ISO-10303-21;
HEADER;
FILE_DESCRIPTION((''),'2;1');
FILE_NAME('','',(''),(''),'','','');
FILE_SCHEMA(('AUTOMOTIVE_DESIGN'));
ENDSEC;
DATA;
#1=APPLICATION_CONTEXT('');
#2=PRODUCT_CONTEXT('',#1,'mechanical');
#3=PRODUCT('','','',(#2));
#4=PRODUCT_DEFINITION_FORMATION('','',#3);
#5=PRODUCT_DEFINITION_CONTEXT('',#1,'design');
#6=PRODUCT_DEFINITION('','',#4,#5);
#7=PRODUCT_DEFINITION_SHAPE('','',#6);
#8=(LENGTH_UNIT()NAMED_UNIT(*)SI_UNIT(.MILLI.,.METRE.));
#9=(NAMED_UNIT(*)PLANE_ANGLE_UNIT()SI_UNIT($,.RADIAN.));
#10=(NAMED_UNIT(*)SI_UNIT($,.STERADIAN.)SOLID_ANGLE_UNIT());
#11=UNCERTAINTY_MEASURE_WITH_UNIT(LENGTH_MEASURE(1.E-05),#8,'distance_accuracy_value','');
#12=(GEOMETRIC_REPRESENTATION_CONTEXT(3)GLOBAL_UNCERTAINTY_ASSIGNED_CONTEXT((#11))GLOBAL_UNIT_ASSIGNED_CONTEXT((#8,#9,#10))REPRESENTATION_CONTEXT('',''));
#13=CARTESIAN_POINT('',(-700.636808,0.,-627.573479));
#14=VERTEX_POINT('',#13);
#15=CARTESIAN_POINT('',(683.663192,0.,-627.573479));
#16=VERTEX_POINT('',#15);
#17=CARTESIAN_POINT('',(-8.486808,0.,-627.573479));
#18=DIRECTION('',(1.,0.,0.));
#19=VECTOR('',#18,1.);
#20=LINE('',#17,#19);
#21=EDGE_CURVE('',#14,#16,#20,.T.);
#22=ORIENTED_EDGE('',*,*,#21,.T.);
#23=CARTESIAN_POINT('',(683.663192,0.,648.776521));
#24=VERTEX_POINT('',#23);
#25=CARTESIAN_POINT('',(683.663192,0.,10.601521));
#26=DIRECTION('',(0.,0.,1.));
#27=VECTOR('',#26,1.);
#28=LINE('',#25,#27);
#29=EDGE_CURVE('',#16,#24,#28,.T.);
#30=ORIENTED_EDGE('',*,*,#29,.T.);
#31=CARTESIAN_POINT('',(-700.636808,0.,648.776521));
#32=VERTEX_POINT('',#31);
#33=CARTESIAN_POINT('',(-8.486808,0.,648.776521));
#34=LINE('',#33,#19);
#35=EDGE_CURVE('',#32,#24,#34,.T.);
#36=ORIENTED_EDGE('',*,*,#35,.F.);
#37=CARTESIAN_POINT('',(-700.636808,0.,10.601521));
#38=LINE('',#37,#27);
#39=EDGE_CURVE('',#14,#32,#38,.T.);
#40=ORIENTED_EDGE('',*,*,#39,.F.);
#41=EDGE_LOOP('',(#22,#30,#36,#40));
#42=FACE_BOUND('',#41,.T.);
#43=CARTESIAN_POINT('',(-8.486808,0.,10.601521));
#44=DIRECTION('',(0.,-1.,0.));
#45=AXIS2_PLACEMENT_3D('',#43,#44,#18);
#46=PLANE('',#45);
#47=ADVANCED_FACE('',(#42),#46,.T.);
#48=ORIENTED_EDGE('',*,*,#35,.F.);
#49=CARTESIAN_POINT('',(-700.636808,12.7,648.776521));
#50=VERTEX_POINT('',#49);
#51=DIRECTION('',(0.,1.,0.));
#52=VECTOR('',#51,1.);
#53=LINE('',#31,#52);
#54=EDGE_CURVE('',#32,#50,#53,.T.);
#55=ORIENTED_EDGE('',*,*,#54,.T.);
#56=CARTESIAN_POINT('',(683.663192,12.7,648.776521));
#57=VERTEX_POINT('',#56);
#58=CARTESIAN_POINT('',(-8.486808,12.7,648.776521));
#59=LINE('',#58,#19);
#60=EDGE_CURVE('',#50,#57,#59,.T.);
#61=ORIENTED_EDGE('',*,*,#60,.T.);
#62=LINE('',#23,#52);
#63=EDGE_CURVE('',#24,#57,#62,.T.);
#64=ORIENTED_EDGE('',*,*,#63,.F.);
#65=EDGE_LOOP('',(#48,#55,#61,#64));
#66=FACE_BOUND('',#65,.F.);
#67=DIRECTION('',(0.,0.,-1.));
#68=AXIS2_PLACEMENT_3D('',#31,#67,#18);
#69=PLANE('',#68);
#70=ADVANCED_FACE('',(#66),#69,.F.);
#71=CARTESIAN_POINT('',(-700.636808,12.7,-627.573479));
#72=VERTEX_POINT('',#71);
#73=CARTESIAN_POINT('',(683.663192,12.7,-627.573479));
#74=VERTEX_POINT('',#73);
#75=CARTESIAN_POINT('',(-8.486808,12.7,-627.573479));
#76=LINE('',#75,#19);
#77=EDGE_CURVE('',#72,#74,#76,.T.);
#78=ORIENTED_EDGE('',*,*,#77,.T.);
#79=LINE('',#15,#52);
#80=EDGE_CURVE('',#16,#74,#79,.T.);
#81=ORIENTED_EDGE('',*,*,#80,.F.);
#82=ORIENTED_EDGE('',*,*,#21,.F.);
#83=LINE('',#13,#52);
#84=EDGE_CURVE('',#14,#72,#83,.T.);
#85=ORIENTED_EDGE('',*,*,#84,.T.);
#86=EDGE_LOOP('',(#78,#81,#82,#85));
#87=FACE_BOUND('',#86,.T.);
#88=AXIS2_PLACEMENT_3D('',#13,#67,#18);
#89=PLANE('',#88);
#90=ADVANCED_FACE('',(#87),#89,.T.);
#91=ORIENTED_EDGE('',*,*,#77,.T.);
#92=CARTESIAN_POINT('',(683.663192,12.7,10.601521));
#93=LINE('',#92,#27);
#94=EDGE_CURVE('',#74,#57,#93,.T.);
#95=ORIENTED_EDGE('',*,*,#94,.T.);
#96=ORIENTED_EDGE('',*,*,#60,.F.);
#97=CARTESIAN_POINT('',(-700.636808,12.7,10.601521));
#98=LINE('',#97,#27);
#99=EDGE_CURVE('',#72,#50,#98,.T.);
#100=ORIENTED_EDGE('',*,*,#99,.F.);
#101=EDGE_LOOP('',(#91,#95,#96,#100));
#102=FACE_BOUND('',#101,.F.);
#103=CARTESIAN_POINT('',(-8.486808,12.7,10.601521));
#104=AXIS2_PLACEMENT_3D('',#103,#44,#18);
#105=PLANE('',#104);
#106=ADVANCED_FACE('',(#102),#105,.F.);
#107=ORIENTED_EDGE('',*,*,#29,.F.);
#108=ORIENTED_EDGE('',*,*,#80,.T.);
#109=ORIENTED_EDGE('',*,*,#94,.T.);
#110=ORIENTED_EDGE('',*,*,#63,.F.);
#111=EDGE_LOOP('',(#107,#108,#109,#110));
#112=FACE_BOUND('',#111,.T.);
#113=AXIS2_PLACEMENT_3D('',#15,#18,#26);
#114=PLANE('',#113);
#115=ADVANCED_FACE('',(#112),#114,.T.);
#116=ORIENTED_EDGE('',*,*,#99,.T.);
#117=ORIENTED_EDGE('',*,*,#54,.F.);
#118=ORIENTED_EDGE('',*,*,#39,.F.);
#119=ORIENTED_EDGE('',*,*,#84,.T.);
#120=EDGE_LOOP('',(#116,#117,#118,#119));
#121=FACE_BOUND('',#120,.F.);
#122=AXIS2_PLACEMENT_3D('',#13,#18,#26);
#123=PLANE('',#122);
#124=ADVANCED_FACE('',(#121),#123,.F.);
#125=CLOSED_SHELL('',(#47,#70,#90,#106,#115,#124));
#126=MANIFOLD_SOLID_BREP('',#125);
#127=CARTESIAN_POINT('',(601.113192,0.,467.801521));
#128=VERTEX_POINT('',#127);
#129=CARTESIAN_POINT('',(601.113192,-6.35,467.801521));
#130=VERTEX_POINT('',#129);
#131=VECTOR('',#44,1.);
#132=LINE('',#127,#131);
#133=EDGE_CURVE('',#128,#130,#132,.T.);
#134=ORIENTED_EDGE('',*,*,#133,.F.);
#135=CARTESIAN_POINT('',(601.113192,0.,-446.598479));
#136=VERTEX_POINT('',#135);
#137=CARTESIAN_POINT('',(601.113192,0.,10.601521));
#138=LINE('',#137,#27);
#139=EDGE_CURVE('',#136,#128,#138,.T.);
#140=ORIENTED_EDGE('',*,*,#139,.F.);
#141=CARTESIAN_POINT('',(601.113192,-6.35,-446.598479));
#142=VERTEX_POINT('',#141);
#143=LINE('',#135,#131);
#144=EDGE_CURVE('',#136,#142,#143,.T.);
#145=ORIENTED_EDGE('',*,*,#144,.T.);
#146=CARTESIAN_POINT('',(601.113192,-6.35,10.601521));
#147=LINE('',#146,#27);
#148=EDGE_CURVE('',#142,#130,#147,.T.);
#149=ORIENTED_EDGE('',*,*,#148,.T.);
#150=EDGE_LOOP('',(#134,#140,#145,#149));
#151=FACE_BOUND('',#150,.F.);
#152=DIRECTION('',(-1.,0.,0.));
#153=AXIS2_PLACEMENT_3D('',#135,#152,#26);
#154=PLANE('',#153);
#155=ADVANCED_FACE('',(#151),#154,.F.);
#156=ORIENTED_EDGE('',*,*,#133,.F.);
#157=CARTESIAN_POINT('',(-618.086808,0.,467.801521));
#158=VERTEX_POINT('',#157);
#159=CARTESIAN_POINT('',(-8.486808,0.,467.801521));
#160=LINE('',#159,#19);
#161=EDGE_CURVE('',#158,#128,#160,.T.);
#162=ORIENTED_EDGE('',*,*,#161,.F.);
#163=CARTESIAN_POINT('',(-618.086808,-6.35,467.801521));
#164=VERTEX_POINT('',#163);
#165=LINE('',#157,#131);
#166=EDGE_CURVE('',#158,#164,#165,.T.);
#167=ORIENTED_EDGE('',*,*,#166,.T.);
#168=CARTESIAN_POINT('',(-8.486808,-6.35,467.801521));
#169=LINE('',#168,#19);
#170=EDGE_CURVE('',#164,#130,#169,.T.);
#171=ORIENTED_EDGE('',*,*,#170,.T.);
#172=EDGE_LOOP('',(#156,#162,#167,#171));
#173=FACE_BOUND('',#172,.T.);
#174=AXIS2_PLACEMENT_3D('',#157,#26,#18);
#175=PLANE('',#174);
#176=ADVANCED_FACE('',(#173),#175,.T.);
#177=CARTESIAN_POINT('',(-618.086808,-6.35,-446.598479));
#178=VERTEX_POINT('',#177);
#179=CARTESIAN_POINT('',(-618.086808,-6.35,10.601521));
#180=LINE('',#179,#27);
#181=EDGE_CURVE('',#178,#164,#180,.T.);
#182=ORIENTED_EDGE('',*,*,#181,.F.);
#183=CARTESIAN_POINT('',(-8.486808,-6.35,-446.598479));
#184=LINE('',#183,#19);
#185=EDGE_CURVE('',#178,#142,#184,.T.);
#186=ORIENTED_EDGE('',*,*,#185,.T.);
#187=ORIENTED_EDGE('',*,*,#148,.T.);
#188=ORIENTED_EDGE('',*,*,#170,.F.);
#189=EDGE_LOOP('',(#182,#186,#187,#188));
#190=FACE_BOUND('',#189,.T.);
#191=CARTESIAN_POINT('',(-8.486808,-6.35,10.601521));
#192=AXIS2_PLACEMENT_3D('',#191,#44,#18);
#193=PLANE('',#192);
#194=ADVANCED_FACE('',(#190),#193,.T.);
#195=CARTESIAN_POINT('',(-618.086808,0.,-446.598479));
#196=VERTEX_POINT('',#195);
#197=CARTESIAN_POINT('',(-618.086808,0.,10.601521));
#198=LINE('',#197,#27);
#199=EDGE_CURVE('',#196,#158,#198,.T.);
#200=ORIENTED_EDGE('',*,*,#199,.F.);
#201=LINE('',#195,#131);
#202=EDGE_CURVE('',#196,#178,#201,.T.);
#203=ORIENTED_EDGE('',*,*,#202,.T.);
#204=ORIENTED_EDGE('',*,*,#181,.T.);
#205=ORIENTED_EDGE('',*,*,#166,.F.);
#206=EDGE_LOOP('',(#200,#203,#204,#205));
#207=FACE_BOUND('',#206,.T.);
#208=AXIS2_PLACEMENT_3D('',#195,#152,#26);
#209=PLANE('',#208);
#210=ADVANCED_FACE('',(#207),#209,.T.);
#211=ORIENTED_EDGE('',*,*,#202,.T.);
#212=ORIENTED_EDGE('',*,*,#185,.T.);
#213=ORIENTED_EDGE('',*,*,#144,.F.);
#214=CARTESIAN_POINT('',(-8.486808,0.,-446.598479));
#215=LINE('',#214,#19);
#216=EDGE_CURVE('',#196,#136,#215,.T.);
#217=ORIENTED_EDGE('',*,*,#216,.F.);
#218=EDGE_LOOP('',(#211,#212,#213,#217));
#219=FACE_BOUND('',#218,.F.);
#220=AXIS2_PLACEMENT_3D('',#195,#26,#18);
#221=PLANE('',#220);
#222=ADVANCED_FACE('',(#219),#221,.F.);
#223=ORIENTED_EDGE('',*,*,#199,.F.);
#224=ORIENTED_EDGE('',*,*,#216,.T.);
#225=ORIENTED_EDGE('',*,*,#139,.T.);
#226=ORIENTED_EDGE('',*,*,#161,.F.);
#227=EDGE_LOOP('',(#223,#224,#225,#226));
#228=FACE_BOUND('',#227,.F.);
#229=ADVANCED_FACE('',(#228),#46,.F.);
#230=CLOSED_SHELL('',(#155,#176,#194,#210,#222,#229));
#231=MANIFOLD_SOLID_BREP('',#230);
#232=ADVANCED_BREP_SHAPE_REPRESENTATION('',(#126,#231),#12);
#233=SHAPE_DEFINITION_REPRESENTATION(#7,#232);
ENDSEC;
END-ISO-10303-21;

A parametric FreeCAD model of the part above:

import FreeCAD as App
import Part
import Sketcher
Q = App.Units.Quantity

doc = App.newDocument("Part")
body = doc.addObject("PartDesign::Body", "Body")

# Sketch on XZ plane
sketch1 = body.newObject("Sketcher::SketchObject", "Sketch")
sketch1.AttachmentSupport = (doc.getObject("XZ_Plane"), [""])
sketch1.MapMode = "FlatFace"
sketch1.addGeometry(Part.LineSegment(App.Vector(-701, 649, 0), App.Vector(-701, -628, 0)), False)
sketch1.addGeometry(Part.LineSegment(App.Vector(-701, -628, 0), App.Vector(684, -628, 0)), False)
sketch1.addGeometry(Part.LineSegment(App.Vector(684, -628, 0), App.Vector(684, 649, 0)), False)
sketch1.addGeometry(Part.LineSegment(App.Vector(684, 649, 0), App.Vector(-701, 649, 0)), False)
sketch1.addConstraint(Sketcher.Constraint("Coincident", 0, 2, 1, 1))
sketch1.addConstraint(Sketcher.Constraint("Coincident", 1, 2, 2, 1))
sketch1.addConstraint(Sketcher.Constraint("Coincident", 2, 2, 3, 1))
sketch1.addConstraint(Sketcher.Constraint("Coincident", 3, 2, 0, 1))
sketch1.addConstraint(Sketcher.Constraint("Vertical", 0))
sketch1.addConstraint(Sketcher.Constraint("Horizontal", 1))
sketch1.addConstraint(Sketcher.Constraint("Vertical", 2))
sketch1.addConstraint(Sketcher.Constraint("Horizontal", 3))
sketch1.addConstraint(Sketcher.Constraint("DistanceX", 1, 1, 1, 2, Q("54.5 in")))
sketch1.addConstraint(Sketcher.Constraint("DistanceY", 0, 2, 0, 1, Q("50.25 in")))
sketch1.addConstraint(Sketcher.Constraint("DistanceX", 0, 2, -1, 1, 700.636808))
sketch1.addConstraint(Sketcher.Constraint("DistanceY", 0, 2, -1, 1, 627.573479))
pad1 = body.newObject("PartDesign::Pad", "Pad")
pad1.Profile = sketch1
pad1.Length = Q("0.5 in")
pad1.Reversed = True
body2 = doc.addObject("PartDesign::Body", "Body001")

# Sketch on XZ plane
sketch2 = body2.newObject("Sketcher::SketchObject", "Sketch001")
sketch2.AttachmentSupport = (doc.getObject("XZ_Plane001"), [""])
sketch2.MapMode = "FlatFace"
sketch2.addGeometry(Part.LineSegment(App.Vector(-618, 468, 0), App.Vector(-618, -447, 0)), False)
sketch2.addGeometry(Part.LineSegment(App.Vector(-618, -447, 0), App.Vector(601, -447, 0)), False)
sketch2.addGeometry(Part.LineSegment(App.Vector(601, -447, 0), App.Vector(601, 468, 0)), False)
sketch2.addGeometry(Part.LineSegment(App.Vector(601, 468, 0), App.Vector(-618, 468, 0)), False)
sketch2.addConstraint(Sketcher.Constraint("Coincident", 0, 2, 1, 1))
sketch2.addConstraint(Sketcher.Constraint("Coincident", 1, 2, 2, 1))
sketch2.addConstraint(Sketcher.Constraint("Coincident", 2, 2, 3, 1))
sketch2.addConstraint(Sketcher.Constraint("Coincident", 3, 2, 0, 1))
sketch2.addConstraint(Sketcher.Constraint("Vertical", 0))
sketch2.addConstraint(Sketcher.Constraint("Horizontal", 1))
sketch2.addConstraint(Sketcher.Constraint("Vertical", 2))
sketch2.addConstraint(Sketcher.Constraint("Horizontal", 3))
sketch2.addConstraint(Sketcher.Constraint("DistanceX", 1, 1, 1, 2, Q("48 in")))
sketch2.addConstraint(Sketcher.Constraint("DistanceY", 0, 2, 0, 1, Q("36 in")))
sketch2.addConstraint(Sketcher.Constraint("DistanceX", 0, 2, -1, 1, 618.086808))
sketch2.addConstraint(Sketcher.Constraint("DistanceY", 0, 2, -1, 1, 446.598479))
pad2 = body2.newObject("PartDesign::Pad", "Pad001")
pad2.Profile = sketch2
pad2.Length = Q("0.25 in")

doc.recompute()
